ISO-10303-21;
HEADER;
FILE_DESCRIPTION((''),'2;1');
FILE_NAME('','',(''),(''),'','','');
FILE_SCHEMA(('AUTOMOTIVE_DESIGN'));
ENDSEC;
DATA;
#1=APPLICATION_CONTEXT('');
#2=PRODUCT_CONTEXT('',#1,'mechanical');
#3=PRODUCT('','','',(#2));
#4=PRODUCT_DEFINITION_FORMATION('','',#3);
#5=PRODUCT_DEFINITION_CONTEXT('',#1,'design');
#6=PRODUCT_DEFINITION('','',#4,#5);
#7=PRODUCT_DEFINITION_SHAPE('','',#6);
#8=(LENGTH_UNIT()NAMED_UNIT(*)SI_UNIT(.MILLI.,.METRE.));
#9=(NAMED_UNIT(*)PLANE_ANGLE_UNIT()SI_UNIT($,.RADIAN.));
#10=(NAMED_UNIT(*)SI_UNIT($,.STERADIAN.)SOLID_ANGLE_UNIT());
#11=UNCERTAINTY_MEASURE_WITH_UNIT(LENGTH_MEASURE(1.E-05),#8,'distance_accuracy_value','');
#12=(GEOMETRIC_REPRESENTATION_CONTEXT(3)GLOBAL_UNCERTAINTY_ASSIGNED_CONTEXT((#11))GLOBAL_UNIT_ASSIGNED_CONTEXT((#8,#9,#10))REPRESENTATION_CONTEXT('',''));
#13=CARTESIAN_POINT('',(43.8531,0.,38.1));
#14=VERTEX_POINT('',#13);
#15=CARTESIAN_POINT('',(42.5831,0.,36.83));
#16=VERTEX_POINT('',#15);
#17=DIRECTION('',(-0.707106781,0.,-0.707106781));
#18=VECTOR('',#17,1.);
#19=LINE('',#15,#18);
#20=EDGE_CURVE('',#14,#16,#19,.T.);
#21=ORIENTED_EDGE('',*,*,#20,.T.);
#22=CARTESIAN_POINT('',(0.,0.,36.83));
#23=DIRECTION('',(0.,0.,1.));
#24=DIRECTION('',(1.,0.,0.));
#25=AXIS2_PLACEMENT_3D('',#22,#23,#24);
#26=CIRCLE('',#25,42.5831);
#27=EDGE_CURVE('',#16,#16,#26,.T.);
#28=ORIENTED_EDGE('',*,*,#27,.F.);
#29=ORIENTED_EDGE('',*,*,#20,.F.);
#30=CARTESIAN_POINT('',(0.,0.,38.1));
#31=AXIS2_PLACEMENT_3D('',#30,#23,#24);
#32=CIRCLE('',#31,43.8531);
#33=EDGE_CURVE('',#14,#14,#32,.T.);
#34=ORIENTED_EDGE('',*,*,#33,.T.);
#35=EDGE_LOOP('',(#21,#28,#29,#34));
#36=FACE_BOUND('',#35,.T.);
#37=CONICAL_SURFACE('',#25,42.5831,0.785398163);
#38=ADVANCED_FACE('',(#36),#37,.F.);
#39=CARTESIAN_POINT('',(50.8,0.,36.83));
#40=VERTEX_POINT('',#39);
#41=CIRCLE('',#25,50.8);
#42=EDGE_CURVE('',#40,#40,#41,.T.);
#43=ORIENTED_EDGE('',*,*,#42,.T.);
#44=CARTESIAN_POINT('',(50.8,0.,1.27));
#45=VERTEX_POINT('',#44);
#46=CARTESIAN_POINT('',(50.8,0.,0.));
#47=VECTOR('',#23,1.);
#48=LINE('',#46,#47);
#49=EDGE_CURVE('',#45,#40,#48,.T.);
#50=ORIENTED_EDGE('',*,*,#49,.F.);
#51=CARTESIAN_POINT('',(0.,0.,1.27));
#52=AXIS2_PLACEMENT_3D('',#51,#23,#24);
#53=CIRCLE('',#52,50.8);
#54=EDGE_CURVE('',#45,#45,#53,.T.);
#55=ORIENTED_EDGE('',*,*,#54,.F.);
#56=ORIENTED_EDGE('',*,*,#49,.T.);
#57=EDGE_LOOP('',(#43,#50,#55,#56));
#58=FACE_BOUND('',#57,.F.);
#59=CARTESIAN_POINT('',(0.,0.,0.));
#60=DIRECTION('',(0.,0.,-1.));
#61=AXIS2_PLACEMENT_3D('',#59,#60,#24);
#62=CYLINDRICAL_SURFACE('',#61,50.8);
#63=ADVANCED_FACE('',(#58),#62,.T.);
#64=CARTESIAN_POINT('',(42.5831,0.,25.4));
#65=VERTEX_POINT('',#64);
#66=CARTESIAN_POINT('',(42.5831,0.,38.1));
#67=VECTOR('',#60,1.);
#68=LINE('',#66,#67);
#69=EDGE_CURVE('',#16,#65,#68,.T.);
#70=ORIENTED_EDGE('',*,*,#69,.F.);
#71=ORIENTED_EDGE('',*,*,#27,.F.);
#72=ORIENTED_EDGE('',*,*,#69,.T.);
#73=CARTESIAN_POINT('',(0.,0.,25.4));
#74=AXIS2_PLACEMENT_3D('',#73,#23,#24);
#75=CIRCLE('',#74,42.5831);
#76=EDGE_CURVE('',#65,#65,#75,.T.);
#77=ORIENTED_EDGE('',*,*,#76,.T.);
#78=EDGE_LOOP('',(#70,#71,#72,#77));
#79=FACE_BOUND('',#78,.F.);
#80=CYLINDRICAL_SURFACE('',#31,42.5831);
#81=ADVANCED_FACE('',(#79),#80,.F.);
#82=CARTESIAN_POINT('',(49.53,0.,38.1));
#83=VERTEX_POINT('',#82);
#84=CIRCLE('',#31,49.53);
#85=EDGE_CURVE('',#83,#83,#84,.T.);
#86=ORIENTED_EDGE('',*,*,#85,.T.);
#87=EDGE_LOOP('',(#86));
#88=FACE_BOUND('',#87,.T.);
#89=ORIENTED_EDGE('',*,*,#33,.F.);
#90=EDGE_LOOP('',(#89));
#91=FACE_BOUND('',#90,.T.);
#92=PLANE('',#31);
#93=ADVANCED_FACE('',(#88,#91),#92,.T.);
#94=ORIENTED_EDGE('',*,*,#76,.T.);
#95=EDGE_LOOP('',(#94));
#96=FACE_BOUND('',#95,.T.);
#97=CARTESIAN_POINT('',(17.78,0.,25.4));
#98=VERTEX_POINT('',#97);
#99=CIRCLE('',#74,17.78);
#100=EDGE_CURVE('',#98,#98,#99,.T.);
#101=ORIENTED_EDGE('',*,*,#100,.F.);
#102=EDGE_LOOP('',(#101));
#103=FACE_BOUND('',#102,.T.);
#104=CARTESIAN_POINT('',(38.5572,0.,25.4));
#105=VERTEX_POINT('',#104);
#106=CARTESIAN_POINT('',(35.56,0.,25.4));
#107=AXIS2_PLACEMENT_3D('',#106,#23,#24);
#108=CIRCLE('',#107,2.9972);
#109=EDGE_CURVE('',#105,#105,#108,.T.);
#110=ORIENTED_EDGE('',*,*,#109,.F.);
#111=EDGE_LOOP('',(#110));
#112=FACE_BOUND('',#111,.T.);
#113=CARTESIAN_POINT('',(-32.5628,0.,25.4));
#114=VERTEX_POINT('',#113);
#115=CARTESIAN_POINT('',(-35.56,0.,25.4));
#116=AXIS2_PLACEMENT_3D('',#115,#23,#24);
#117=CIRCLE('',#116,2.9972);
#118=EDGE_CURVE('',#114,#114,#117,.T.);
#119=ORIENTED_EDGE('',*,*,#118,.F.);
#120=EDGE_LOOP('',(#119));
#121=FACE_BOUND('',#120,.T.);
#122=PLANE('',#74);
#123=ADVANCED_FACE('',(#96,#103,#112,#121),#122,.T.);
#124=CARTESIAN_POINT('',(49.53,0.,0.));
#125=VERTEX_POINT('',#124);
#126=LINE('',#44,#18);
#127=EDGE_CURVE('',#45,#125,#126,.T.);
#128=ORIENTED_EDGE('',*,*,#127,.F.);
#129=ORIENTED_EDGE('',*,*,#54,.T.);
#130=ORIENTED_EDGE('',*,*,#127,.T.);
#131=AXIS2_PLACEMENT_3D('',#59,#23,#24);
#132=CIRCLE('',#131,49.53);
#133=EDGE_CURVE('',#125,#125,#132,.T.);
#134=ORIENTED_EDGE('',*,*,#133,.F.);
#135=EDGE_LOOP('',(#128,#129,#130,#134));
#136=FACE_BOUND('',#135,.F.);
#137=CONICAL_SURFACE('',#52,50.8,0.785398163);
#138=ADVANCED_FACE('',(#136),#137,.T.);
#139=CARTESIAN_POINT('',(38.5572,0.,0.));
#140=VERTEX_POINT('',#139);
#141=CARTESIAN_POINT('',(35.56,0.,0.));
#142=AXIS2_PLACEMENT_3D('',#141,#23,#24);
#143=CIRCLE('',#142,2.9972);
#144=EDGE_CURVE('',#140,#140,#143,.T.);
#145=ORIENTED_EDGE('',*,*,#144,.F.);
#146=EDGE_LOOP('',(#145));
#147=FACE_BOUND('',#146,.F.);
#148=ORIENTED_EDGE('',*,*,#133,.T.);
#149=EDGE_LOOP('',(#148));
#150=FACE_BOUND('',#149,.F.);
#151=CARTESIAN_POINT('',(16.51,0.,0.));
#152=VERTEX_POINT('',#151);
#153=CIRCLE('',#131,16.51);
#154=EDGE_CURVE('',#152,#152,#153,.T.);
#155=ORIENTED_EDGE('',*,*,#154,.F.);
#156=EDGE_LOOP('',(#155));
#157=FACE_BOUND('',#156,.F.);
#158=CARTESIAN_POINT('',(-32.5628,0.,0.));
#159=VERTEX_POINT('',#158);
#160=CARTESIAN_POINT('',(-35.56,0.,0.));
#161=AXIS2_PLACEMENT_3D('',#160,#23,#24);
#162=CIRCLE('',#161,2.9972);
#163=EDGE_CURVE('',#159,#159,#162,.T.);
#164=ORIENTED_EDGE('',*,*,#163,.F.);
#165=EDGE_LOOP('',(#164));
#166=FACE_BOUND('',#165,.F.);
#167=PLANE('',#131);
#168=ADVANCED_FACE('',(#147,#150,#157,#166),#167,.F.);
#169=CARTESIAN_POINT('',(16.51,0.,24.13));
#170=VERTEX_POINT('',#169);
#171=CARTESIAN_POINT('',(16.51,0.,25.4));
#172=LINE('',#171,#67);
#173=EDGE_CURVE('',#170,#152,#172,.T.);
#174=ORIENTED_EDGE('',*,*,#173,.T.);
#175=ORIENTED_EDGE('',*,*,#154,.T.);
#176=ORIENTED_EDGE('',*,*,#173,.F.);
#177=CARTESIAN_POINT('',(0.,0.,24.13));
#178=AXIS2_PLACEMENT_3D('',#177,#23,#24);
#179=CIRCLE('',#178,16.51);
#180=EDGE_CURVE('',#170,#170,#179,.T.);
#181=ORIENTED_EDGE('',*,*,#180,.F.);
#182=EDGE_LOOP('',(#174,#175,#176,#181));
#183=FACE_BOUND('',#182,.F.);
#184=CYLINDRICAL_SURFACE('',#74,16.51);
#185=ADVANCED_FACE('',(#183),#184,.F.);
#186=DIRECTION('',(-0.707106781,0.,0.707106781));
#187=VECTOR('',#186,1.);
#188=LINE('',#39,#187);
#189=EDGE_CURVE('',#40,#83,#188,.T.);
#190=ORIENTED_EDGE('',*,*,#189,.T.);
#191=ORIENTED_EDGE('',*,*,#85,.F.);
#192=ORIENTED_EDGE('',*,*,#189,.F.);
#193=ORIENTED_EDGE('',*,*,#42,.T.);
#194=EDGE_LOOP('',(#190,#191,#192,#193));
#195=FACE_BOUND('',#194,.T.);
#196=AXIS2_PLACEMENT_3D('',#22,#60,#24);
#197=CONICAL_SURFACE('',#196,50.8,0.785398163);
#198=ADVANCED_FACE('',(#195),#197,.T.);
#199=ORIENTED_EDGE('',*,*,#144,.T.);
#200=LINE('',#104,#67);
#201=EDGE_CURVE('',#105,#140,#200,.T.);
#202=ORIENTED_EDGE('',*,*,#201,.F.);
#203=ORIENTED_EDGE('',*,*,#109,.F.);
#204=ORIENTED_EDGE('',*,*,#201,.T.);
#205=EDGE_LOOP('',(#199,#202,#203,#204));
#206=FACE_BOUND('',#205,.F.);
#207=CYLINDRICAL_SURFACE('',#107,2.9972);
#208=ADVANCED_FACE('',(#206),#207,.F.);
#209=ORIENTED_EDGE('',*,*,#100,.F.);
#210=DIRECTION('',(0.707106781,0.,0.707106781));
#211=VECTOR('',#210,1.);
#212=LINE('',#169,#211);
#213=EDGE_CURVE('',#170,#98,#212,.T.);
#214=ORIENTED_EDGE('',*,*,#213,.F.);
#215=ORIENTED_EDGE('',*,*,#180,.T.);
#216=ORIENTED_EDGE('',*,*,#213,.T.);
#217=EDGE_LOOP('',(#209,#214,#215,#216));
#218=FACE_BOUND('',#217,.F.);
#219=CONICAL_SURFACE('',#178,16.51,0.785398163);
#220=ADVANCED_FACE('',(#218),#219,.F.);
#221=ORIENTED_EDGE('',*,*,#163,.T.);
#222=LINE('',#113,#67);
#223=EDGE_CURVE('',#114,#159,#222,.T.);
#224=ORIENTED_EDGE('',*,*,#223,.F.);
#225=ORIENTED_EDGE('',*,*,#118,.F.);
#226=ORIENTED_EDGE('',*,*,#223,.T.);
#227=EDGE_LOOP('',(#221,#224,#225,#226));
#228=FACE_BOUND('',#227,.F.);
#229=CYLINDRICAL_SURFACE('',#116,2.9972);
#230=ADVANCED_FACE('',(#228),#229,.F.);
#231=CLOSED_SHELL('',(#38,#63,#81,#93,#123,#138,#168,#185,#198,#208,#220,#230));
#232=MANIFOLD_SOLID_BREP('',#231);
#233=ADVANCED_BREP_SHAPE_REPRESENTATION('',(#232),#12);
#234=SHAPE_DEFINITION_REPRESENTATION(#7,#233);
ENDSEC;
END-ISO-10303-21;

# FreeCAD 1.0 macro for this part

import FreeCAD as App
import Part
import Sketcher
Q = App.Units.Quantity


def edges_at(feature, points):
    """Names of the edges that pass closest to the given points."""
    edges = feature.Shape.Edges
    near = lambda p: min(range(len(edges)), key=lambda i: edges[i].distToShape(Part.Vertex(*p))[0])
    return sorted({f"Edge{near(p) + 1}" for p in points})

doc = App.newDocument("Part")
body = doc.addObject("PartDesign::Body", "Body")

sketch1 = body.newObject("Sketcher::SketchObject", "Sketch")
sketch1.AttachmentSupport = (doc.getObject("XY_Plane"), [""])
sketch1.MapMode = "FlatFace"
sketch1.addGeometry(Part.Circle(App.Vector(0, 0, 0), App.Vector(0, 0, 1), 51), False)
sketch1.addConstraint(Sketcher.Constraint("Coincident", 0, 3, -1, 1))
sketch1.addConstraint(Sketcher.Constraint("Diameter", 0, Q("4 in")))
pad1 = body.newObject("PartDesign::Pad", "Pad")
pad1.Profile = sketch1
pad1.Length = Q("1.5 in")

sketch2 = body.newObject("Sketcher::SketchObject", "Sketch001")
sketch2.AttachmentSupport = (doc.getObject("XY_Plane"), [""])
sketch2.MapMode = "FlatFace"
sketch2.AttachmentOffset = App.Placement(App.Vector(0, 0, 1.5 * 25.4), App.Rotation())
sketch2.addGeometry(Part.Circle(App.Vector(0, 0, 0), App.Vector(0, 0, 1), 43), False)
sketch2.addConstraint(Sketcher.Constraint("Coincident", 0, 3, -1, 1))
sketch2.addConstraint(Sketcher.Constraint("Diameter", 0, Q("3.353 in")))
pocket1 = body.newObject("PartDesign::Pocket", "Pocket")
pocket1.Profile = sketch2
pocket1.Length = Q("0.5 in")

sketch3 = body.newObject("Sketcher::SketchObject", "Sketch002")
sketch3.AttachmentSupport = (doc.getObject("XY_Plane"), [""])
sketch3.MapMode = "FlatFace"
sketch3.AttachmentOffset = App.Placement(App.Vector(0, 0, 1 * 25.4), App.Rotation())
sketch3.addGeometry(Part.Circle(App.Vector(0, 0, 0), App.Vector(0, 0, 1), 17), False)
sketch3.addConstraint(Sketcher.Constraint("Coincident", 0, 3, -1, 1))
sketch3.addConstraint(Sketcher.Constraint("Diameter", 0, Q("1.3 in")))
pocket2 = body.newObject("PartDesign::Pocket", "Pocket001")
pocket2.Profile = sketch3
pocket2.Type = "ThroughAll"
doc.recompute()

chamfer = body.newObject("PartDesign::Chamfer", "Chamfer")
chamfer.Base = (pocket2, edges_at(pocket2, [
    (-42.583, 0, 38.1),
    (-16.51, 0, 25.4),
    (-50.8, 0, 38.1),
    (-50.8, 0, 0),
]))
chamfer.Size = Q("0.05 in")

sketch4 = body.newObject("Sketcher::SketchObject", "Sketch003")
sketch4.AttachmentSupport = (doc.getObject("XY_Plane"), [""])
sketch4.MapMode = "FlatFace"
sketch4.AttachmentOffset = App.Placement(App.Vector(0, 0, 1 * 25.4), App.Rotation())
sketch4.addGeometry(Part.Circle(App.Vector(35.6, 0, 0), App.Vector(0, 0, 1), 3), False)
sketch4.addGeometry(Part.Circle(App.Vector(-35.6, 0, 0), App.Vector(0, 0, 1), 3), False)
sketch4.addConstraint(Sketcher.Constraint("Equal", 0, 1))
sketch4.addConstraint(Sketcher.Constraint("Symmetric", 0, 3, 1, 3, -1, 1))
sketch4.addConstraint(Sketcher.Constraint("PointOnObject", 0, 3, -1))
sketch4.addConstraint(Sketcher.Constraint("Diameter", 0, Q("0.236 in")))
sketch4.addConstraint(Sketcher.Constraint("DistanceX", -1, 1, 0, 3, Q("1.4 in")))
pocket3 = body.newObject("PartDesign::Pocket", "Pocket002")
pocket3.Profile = sketch4
pocket3.Type = "ThroughAll"

doc.recompute()
